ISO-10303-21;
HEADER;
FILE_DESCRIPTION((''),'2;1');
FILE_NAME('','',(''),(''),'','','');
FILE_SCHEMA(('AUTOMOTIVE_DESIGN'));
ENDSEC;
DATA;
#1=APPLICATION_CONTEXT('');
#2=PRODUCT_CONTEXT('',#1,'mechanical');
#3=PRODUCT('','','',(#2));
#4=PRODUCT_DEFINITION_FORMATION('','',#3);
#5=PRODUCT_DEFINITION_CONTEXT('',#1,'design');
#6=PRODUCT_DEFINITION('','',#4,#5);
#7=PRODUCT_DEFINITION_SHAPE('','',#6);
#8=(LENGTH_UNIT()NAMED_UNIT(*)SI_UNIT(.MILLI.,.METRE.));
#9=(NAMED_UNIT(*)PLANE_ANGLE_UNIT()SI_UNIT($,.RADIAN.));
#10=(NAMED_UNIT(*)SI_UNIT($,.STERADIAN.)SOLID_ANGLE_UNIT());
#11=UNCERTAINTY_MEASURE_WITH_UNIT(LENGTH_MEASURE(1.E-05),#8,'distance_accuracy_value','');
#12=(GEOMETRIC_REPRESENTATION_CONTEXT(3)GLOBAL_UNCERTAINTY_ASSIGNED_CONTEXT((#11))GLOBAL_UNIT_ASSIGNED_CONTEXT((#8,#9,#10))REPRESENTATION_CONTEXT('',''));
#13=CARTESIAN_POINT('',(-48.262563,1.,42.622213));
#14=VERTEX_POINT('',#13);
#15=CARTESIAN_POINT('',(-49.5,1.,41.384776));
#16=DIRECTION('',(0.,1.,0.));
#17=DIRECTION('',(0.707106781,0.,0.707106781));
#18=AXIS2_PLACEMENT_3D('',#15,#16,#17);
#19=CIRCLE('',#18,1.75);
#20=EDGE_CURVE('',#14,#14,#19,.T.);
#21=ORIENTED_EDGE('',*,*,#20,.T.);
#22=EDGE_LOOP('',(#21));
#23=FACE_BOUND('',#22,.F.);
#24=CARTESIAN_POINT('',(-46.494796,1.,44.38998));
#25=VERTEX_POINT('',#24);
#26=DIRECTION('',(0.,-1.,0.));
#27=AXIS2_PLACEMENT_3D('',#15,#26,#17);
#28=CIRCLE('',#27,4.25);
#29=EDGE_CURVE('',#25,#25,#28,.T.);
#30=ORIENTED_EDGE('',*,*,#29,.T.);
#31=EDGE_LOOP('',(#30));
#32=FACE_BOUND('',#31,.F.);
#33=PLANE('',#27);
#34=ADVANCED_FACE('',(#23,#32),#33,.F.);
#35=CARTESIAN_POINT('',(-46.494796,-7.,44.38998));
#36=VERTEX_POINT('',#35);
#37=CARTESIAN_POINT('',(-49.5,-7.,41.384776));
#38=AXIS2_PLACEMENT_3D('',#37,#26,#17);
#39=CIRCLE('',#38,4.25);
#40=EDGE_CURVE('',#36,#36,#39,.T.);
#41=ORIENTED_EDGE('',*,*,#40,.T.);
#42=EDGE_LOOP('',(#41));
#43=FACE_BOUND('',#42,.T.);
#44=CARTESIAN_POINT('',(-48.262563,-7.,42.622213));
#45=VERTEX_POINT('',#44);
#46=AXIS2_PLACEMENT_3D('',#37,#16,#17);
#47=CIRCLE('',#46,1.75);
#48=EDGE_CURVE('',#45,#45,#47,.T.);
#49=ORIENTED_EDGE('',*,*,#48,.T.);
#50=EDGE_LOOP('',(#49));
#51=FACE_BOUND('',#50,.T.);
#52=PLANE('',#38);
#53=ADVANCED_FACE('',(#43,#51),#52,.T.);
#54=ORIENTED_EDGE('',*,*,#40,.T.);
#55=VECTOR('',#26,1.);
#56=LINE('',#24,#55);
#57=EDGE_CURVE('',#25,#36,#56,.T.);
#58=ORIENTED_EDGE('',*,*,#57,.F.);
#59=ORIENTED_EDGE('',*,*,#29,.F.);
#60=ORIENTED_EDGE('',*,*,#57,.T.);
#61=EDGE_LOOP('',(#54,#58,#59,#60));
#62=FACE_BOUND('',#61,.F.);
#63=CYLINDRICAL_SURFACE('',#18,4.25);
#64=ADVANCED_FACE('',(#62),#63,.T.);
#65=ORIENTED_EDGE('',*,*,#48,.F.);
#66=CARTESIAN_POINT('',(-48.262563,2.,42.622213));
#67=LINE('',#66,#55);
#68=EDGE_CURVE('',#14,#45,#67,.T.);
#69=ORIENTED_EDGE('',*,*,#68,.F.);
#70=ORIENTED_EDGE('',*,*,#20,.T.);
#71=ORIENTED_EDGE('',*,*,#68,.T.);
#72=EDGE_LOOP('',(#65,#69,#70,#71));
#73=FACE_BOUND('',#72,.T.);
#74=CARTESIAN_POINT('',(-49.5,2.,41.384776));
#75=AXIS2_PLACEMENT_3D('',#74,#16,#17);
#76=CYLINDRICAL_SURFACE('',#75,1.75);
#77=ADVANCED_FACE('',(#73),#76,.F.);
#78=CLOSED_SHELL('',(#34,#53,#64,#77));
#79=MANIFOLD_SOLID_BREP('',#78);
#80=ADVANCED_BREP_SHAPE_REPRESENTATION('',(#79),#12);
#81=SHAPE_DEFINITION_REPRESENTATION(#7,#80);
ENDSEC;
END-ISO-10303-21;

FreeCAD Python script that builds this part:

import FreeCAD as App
import Part
import Sketcher

V = App.Vector

doc = App.newDocument("Part")
params = doc.addObject("Spreadsheet::Sheet", "Params")
for row, (alias, value) in enumerate([
    ("sketch1_diameter", "3.5 mm"),
    ("pad1_length", "10 mm"),
    ("sketch2_diameter", "8.5 mm"),
    ("pad2_length", "8 mm"),
], start=1):
    params.set(f"A{row}", alias)
    params.set(f"B{row}", "=" + value)
    params.setAlias(f"B{row}", alias)

body = doc.addObject("PartDesign::Body", "Body")

# Sketch on XY plane
sketch1 = doc.addObject("Sketcher::SketchObject", "Sketch")
body.addObject(sketch1)
sketch1.AttachmentSupport = (doc.XY_Plane, [""])
sketch1.MapMode = "FlatFace"
sketch1.AttachmentOffset = App.Placement(V(0, 0, -1), App.Rotation())
sketch1.addGeometry(Part.Circle(V(0, 0, 0), V(0, 0, 1), 1.75), False)
sketch1.addConstraint([
    Sketcher.Constraint("Coincident", 0, 3, -1, 1),
    Sketcher.Constraint("Diameter", 0, 3.5),
])
sketch1.setExpression("Constraints[1]", "Params.sketch1_diameter")
pad1 = doc.addObject("PartDesign::Pad", "Pad")
body.addObject(pad1)
pad1.Profile = sketch1
pad1.setExpression("Length", "Params.pad1_length")
body2 = doc.addObject("PartDesign::Body", "Body001")

# Sketch on XY plane
sketch2 = doc.addObject("Sketcher::SketchObject", "Sketch001")
body2.addObject(sketch2)
sketch2.AttachmentSupport = (doc.getObject("XY_Plane001"), [""])
sketch2.MapMode = "FlatFace"
sketch2.addGeometry(Part.Circle(V(0, 0, 0), V(0, 0, 1), 4.25), False)
sketch2.addConstraint([
    Sketcher.Constraint("Coincident", 0, 3, -1, 1),
    Sketcher.Constraint("Diameter", 0, 8.5),
])
sketch2.setExpression("Constraints[1]", "Params.sketch2_diameter")
pad2 = doc.addObject("PartDesign::Pad", "Pad001")
body2.addObject(pad2)
pad2.Profile = sketch2
pad2.setExpression("Length", "Params.pad2_length")
doc.recompute()

boolean = doc.addObject("PartDesign::Boolean", "Boolean")
body2.addObject(boolean)
boolean.Type = "Cut"
boolean.addObjects([body])
body3 = doc.addObject("PartDesign::Body", "Body002")
doc.recompute()

body2.Placement = App.Placement(V(0, 0, 0), App.Rotation(V(1, 0, 0), 90))
boolean2 = doc.addObject("PartDesign::Boolean", "Boolean001")
body3.addObject(boolean2)
boolean2.Type = "Fuse"
boolean2.addObjects([body2])
body4 = doc.addObject("PartDesign::Body", "Body003")
doc.recompute()

body3.Placement = App.Placement(V(0, 0, 0), App.Rotation(V(0, 1, 0), 315))
boolean3 = doc.addObject("PartDesign::Boolean", "Boolean002")
body4.addObject(boolean3)
boolean3.Type = "Fuse"
boolean3.addObjects([body3])
body5 = doc.addObject("PartDesign::Body", "Body004")
doc.recompute()

body4.Placement = App.Placement(V(-49.5, 1, 41.384776), App.Rotation(V(0, 0, 1), 0))
boolean4 = doc.addObject("PartDesign::Boolean", "Boolean003")
body5.addObject(boolean4)
boolean4.Type = "Fuse"
boolean4.addObjects([body4])

doc.recompute()
